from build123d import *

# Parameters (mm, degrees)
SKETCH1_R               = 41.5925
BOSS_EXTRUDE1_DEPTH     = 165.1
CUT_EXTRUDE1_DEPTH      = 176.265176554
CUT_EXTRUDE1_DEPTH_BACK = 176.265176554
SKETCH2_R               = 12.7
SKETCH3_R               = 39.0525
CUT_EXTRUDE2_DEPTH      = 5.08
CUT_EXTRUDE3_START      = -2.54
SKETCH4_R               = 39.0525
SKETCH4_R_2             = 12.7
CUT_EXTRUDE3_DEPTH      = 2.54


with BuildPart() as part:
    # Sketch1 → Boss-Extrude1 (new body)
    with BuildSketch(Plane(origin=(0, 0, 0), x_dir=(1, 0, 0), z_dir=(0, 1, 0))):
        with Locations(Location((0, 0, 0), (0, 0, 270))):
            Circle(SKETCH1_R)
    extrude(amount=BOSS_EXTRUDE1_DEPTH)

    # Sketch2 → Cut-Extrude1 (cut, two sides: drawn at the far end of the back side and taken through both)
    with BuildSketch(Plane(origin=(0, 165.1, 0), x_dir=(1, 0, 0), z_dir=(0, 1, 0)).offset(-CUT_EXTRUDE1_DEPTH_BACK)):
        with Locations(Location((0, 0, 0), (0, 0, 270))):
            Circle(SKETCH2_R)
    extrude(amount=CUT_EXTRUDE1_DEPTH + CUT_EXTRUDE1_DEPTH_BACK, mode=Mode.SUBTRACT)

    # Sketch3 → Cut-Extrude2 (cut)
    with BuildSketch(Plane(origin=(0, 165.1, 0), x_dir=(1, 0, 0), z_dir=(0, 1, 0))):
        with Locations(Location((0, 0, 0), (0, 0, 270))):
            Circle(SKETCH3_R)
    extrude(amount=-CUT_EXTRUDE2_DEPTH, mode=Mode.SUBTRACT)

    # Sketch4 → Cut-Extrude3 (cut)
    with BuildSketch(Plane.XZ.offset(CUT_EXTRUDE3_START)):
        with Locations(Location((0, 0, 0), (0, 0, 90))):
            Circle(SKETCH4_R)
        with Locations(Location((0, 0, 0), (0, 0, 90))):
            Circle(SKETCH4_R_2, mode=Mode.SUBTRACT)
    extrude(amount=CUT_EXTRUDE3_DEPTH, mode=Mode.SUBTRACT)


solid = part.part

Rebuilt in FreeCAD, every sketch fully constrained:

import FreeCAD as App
import Part
import Sketcher
Q = App.Units.Quantity

doc = App.newDocument("Part")
body = doc.addObject("PartDesign::Body", "Body")

sketch1 = body.newObject("Sketcher::SketchObject", "Sketch")
sketch1.AttachmentSupport = (doc.getObject("XZ_Plane"), [""])
sketch1.MapMode = "FlatFace"
sketch1.addGeometry(Part.Circle(App.Vector(0, 0, 0), App.Vector(0, 0, 1), 42), False)
sketch1.addConstraint(Sketcher.Constraint("Coincident", 0, 3, -1, 1))
sketch1.addConstraint(Sketcher.Constraint("Diameter", 0, Q("3.275 in")))
pad1 = body.newObject("PartDesign::Pad", "Pad")
pad1.Profile = sketch1
pad1.Length = Q("6.5 in")
pad1.Reversed = True

sketch2 = body.newObject("Sketcher::SketchObject", "Sketch001")
sketch2.AttachmentSupport = (doc.getObject("XZ_Plane"), [""])
sketch2.MapMode = "FlatFace"
sketch2.AttachmentOffset = App.Placement(App.Vector(0, 0, -6.5 * 25.4), App.Rotation())
sketch2.addGeometry(Part.Circle(App.Vector(0, 0, 0), App.Vector(0, 0, 1), 13), False)
sketch2.addConstraint(Sketcher.Constraint("Coincident", 0, 3, -1, 1))
sketch2.addConstraint(Sketcher.Constraint("Diameter", 0, Q("1 in")))
pocket1 = body.newObject("PartDesign::Pocket", "Pocket")
pocket1.Profile = sketch2
pocket1.Type = "ThroughAll"
pocket1.Midplane = True

sketch3 = body.newObject("Sketcher::SketchObject", "Sketch002")
sketch3.AttachmentSupport = (doc.getObject("XZ_Plane"), [""])
sketch3.MapMode = "FlatFace"
sketch3.AttachmentOffset = App.Placement(App.Vector(0, 0, -6.5 * 25.4), App.Rotation())
sketch3.addGeometry(Part.Circle(App.Vector(0, 0, 0), App.Vector(0, 0, 1), 39), False)
sketch3.addConstraint(Sketcher.Constraint("Coincident", 0, 3, -1, 1))
sketch3.addConstraint(Sketcher.Constraint("Diameter", 0, Q("3.075 in")))
pocket2 = body.newObject("PartDesign::Pocket", "Pocket001")
pocket2.Profile = sketch3
pocket2.Length = Q("0.2 in")
pocket2.Reversed = True

sketch4 = body.newObject("Sketcher::SketchObject", "Sketch003")
sketch4.AttachmentSupport = (doc.getObject("XZ_Plane"), [""])
sketch4.MapMode = "FlatFace"
sketch4.AttachmentOffset = App.Placement(App.Vector(0, 0, -0.1 * 25.4), App.Rotation())
sketch4.addGeometry(Part.Circle(App.Vector(0, 0, 0), App.Vector(0, 0, 1), 39), False)
sketch4.addGeometry(Part.Circle(App.Vector(0, 0, 0), App.Vector(0, 0, 1), 13), False)
sketch4.addConstraint(Sketcher.Constraint("Coincident", 0, 3, -1, 1))
sketch4.addConstraint(Sketcher.Constraint("Coincident", 1, 3, -1, 1))
sketch4.addConstraint(Sketcher.Constraint("Diameter", 1, Q("1 in")))
sketch4.addConstraint(Sketcher.Constraint("Diameter", 0, Q("3.075 in")))
pocket3 = body.newObject("PartDesign::Pocket", "Pocket002")
pocket3.Profile = sketch4
pocket3.Length = Q("0.1 in")
pocket3.Reversed = True

doc.recompute()
